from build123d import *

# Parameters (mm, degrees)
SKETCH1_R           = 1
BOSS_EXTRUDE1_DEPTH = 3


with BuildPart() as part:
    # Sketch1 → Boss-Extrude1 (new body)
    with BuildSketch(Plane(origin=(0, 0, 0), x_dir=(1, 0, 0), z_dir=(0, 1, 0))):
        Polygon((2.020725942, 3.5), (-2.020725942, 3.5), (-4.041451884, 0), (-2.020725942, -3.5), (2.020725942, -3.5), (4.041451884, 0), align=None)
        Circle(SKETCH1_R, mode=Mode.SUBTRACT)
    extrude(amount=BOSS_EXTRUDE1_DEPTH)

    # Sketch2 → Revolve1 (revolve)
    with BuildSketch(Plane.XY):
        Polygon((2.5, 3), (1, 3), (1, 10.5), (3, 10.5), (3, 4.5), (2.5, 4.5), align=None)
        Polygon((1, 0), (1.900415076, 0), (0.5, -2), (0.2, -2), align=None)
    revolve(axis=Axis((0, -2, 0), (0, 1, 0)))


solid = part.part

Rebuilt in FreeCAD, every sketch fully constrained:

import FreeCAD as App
import Part
import Sketcher
from FreeCAD import Vector
Q = App.Units.Quantity


def add_polygon(sketch, points):
    """Adds a closed chain of lines whose ends are joined by coincident constraints."""
    first, n = sketch.GeometryCount, len(points)
    for a, b in zip(points, points[1:] + points[:1]):
        sketch.addGeometry(Part.LineSegment(App.Vector(*a, 0), App.Vector(*b, 0)), False)
    for i in range(n):
        sketch.addConstraint(Sketcher.Constraint("Coincident", first + i, 2, first + (i + 1) % n, 1))

doc = App.newDocument("Part")
body = doc.addObject("PartDesign::Body", "Body")

sketch1 = body.newObject("Sketcher::SketchObject", "Sketch")
sketch1.AttachmentSupport = (doc.getObject("XZ_Plane"), [""])
sketch1.MapMode = "FlatFace"
add_polygon(sketch1, [(2, -3.5), (-2, -3.5), (-4, 0), (-2, 3.5), (2, 3.5), (4, 0)])
sketch1.addGeometry(Part.Circle(Vector(0, 0, 0), Vector(0, 0, 1), 1), False)
sketch1.addConstraint(Sketcher.Constraint("Horizontal", 0))
sketch1.addConstraint(Sketcher.Constraint("Horizontal", 3))
sketch1.addConstraint(Sketcher.Constraint("Coincident", 6, 3, -1, 1))
sketch1.addConstraint(Sketcher.Constraint("Symmetric", 0, 2, 3, 2, -1, 1))
sketch1.addConstraint(Sketcher.Constraint("Symmetric", 1, 2, 4, 2, -1, 1))
sketch1.addConstraint(Sketcher.Constraint("PointOnObject", 1, 2, -1))
sketch1.addConstraint(Sketcher.Constraint("Parallel", 2, 5))
sketch1.addConstraint(Sketcher.Constraint("Vertical", 0, 2, 2, 2))
sketch1.addConstraint(Sketcher.Constraint("Diameter", 6, Q("2 mm")))
sketch1.addConstraint(Sketcher.Constraint("Angle", 1, Q("120 deg")))
sketch1.addConstraint(Sketcher.Constraint("DistanceY", 0, 2, 2, 2, Q("7 mm")))
sketch1.addConstraint(Sketcher.Constraint("DistanceX", 0, 2, 0, 1, Q("4.041452 mm")))
pad1 = body.newObject("PartDesign::Pad", "Pad")
pad1.Profile = sketch1
pad1.Length = 3
pad1.Reversed = True

sketch2 = body.newObject("Sketcher::SketchObject", "Sketch001")
sketch2.AttachmentSupport = (doc.getObject("XY_Plane"), [""])
sketch2.MapMode = "FlatFace"
add_polygon(sketch2, [(1, 3), (2.5, 3), (2.5, 4.5), (3, 4.5), (3, 10.5), (1, 10.5)])
add_polygon(sketch2, [(1.9, 0), (1, 0), (0.2, -2), (0.5, -2)])
sketch2.addConstraint(Sketcher.Constraint("Horizontal", 0))
sketch2.addConstraint(Sketcher.Constraint("Vertical", 1))
sketch2.addConstraint(Sketcher.Constraint("Horizontal", 2))
sketch2.addConstraint(Sketcher.Constraint("Vertical", 3))
sketch2.addConstraint(Sketcher.Constraint("Horizontal", 4))
sketch2.addConstraint(Sketcher.Constraint("Vertical", 5))
sketch2.addConstraint(Sketcher.Constraint("Horizontal", 6))
sketch2.addConstraint(Sketcher.Constraint("Horizontal", 8))
sketch2.addConstraint(Sketcher.Constraint("PointOnObject", 6, 2, -1))
sketch2.addConstraint(Sketcher.Constraint("Vertical", 5, 2, 6, 2))
sketch2.addConstraint(Sketcher.Constraint("Equal", 0, 1))
sketch2.addConstraint(Sketcher.Constraint("DistanceX", 4, 2, 4, 1, Q("2 mm")))
sketch2.addConstraint(Sketcher.Constraint("DistanceY", 3, 1, 3, 2, Q("6 mm")))
sketch2.addConstraint(Sketcher.Constraint("Angle", 9, Q("55 deg")))
sketch2.addConstraint(Sketcher.Constraint("DistanceX", 0, 1, 0, 2, Q("1.5 mm")))
sketch2.addConstraint(Sketcher.Constraint("DistanceX", 8, 1, 8, 2, Q("0.3 mm")))
sketch2.addConstraint(Sketcher.Constraint("DistanceY", -1, 1, 0, 2, Q("3 mm")))
sketch2.addConstraint(Sketcher.Constraint("DistanceX", -1, 1, 2, 2, Q("3 mm")))
sketch2.addConstraint(Sketcher.Constraint("DistanceY", 7, 2, -1, 1, Q("2 mm")))
sketch2.addConstraint(Sketcher.Constraint("DistanceX", 8, 2, 0, 2, Q("2 mm")))
revolution = body.newObject("PartDesign::Revolution", "Revolution")
revolution.Profile = sketch2
revolution.ReferenceAxis = (sketch2, ["V_Axis"])
revolution.Angle = 360

doc.recompute()
